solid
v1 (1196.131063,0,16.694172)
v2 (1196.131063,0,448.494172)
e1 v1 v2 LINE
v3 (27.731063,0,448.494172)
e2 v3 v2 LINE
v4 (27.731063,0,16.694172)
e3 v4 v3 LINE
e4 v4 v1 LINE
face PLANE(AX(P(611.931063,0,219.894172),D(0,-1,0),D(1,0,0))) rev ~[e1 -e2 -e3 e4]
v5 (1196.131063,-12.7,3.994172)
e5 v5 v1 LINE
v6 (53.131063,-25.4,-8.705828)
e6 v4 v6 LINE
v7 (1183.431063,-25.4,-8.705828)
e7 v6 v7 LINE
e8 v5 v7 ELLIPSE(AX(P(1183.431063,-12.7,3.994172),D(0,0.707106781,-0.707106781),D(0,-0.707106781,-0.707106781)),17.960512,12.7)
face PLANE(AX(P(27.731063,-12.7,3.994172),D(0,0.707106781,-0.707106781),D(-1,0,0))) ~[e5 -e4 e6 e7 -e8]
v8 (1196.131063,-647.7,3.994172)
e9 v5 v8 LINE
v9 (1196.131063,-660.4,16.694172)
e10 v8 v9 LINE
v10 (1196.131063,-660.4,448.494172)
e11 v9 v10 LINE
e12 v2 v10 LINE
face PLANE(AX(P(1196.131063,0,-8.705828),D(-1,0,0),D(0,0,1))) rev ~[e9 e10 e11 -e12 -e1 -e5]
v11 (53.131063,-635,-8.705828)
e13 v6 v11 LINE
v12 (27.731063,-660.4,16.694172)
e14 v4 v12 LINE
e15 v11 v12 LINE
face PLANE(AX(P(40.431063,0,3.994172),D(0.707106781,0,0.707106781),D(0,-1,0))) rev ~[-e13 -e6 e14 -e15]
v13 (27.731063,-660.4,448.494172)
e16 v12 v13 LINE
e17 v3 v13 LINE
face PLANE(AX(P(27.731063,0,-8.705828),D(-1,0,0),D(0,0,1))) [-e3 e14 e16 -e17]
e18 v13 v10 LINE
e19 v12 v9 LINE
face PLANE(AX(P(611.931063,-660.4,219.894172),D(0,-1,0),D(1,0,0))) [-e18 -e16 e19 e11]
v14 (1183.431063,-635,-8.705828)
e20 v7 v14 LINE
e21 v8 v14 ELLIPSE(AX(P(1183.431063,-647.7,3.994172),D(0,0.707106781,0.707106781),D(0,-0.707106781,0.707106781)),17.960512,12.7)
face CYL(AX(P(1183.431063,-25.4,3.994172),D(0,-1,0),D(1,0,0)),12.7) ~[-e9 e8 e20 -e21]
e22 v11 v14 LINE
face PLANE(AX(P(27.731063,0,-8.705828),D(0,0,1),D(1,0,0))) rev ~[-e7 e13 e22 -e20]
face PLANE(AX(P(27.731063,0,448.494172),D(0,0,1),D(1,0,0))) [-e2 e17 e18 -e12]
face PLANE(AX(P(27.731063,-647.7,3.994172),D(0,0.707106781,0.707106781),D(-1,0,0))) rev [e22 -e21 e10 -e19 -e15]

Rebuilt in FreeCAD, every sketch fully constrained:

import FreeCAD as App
import Part
import Sketcher
from FreeCAD import Vector
Q = App.Units.Quantity


def edges_at(feature, points):
    """Names of the edges that pass closest to the given points."""
    edges = feature.Shape.Edges
    near = lambda p: min(range(len(edges)), key=lambda i: edges[i].distToShape(Part.Vertex(*p))[0])
    return sorted({f"Edge{near(p) + 1}" for p in points})

doc = App.newDocument("Part")
body = doc.addObject("PartDesign::Body", "Body")

# Sketch on XZ plane
sketch1 = body.newObject("Sketcher::SketchObject", "Sketch")
sketch1.AttachmentSupport = (doc.getObject("XZ_Plane"), [""])
sketch1.MapMode = "FlatFace"
sketch1.addGeometry([
    Part.LineSegment(Vector(28, 448, 0), Vector(28, -9, 0)),
    Part.LineSegment(Vector(28, -9, 0), Vector(1196, -9, 0)),
    Part.LineSegment(Vector(1196, -9, 0), Vector(1196, 448, 0)),
    Part.LineSegment(Vector(1196, 448, 0), Vector(28, 448, 0)),
], False)
sketch1.addConstraint([
    Sketcher.Constraint("Coincident", 0, 2, 1, 1),
    Sketcher.Constraint("Coincident", 1, 2, 2, 1),
    Sketcher.Constraint("Coincident", 2, 2, 3, 1),
    Sketcher.Constraint("Coincident", 3, 2, 0, 1),
    Sketcher.Constraint("Vertical", 0),
    Sketcher.Constraint("Horizontal", 1),
    Sketcher.Constraint("Vertical", 2),
    Sketcher.Constraint("Horizontal", 3),
    Sketcher.Constraint("DistanceX", 1, 1, 1, 2, Q("46 in")),
    Sketcher.Constraint("DistanceY", 0, 2, 0, 1, Q("18 in")),
    Sketcher.Constraint("DistanceY", -1, 1, 2, 2, 448.494172),
    Sketcher.Constraint("DistanceX", -1, 1, 0, 2, 27.731063),
])
pad1 = body.newObject("PartDesign::Pad", "Pad")
pad1.Profile = sketch1
pad1.Length = Q("26 in")
doc.recompute()

chamfer = body.newObject("PartDesign::Chamfer", "Chamfer")
chamfer.Base = (pad1, edges_at(pad1, [(611.931, -660.4, -8.706), (27.731, -330.2, -8.706), (611.931, 0, -8.706)]))
chamfer.Size = Q("1 in")
doc.recompute()

fillet = body.newObject("PartDesign::Fillet", "Fillet")
fillet.Base = (chamfer, edges_at(chamfer, [(1196.131, -330.2, -8.706)]))
fillet.Radius = Q("0.5 in")

doc.recompute()
